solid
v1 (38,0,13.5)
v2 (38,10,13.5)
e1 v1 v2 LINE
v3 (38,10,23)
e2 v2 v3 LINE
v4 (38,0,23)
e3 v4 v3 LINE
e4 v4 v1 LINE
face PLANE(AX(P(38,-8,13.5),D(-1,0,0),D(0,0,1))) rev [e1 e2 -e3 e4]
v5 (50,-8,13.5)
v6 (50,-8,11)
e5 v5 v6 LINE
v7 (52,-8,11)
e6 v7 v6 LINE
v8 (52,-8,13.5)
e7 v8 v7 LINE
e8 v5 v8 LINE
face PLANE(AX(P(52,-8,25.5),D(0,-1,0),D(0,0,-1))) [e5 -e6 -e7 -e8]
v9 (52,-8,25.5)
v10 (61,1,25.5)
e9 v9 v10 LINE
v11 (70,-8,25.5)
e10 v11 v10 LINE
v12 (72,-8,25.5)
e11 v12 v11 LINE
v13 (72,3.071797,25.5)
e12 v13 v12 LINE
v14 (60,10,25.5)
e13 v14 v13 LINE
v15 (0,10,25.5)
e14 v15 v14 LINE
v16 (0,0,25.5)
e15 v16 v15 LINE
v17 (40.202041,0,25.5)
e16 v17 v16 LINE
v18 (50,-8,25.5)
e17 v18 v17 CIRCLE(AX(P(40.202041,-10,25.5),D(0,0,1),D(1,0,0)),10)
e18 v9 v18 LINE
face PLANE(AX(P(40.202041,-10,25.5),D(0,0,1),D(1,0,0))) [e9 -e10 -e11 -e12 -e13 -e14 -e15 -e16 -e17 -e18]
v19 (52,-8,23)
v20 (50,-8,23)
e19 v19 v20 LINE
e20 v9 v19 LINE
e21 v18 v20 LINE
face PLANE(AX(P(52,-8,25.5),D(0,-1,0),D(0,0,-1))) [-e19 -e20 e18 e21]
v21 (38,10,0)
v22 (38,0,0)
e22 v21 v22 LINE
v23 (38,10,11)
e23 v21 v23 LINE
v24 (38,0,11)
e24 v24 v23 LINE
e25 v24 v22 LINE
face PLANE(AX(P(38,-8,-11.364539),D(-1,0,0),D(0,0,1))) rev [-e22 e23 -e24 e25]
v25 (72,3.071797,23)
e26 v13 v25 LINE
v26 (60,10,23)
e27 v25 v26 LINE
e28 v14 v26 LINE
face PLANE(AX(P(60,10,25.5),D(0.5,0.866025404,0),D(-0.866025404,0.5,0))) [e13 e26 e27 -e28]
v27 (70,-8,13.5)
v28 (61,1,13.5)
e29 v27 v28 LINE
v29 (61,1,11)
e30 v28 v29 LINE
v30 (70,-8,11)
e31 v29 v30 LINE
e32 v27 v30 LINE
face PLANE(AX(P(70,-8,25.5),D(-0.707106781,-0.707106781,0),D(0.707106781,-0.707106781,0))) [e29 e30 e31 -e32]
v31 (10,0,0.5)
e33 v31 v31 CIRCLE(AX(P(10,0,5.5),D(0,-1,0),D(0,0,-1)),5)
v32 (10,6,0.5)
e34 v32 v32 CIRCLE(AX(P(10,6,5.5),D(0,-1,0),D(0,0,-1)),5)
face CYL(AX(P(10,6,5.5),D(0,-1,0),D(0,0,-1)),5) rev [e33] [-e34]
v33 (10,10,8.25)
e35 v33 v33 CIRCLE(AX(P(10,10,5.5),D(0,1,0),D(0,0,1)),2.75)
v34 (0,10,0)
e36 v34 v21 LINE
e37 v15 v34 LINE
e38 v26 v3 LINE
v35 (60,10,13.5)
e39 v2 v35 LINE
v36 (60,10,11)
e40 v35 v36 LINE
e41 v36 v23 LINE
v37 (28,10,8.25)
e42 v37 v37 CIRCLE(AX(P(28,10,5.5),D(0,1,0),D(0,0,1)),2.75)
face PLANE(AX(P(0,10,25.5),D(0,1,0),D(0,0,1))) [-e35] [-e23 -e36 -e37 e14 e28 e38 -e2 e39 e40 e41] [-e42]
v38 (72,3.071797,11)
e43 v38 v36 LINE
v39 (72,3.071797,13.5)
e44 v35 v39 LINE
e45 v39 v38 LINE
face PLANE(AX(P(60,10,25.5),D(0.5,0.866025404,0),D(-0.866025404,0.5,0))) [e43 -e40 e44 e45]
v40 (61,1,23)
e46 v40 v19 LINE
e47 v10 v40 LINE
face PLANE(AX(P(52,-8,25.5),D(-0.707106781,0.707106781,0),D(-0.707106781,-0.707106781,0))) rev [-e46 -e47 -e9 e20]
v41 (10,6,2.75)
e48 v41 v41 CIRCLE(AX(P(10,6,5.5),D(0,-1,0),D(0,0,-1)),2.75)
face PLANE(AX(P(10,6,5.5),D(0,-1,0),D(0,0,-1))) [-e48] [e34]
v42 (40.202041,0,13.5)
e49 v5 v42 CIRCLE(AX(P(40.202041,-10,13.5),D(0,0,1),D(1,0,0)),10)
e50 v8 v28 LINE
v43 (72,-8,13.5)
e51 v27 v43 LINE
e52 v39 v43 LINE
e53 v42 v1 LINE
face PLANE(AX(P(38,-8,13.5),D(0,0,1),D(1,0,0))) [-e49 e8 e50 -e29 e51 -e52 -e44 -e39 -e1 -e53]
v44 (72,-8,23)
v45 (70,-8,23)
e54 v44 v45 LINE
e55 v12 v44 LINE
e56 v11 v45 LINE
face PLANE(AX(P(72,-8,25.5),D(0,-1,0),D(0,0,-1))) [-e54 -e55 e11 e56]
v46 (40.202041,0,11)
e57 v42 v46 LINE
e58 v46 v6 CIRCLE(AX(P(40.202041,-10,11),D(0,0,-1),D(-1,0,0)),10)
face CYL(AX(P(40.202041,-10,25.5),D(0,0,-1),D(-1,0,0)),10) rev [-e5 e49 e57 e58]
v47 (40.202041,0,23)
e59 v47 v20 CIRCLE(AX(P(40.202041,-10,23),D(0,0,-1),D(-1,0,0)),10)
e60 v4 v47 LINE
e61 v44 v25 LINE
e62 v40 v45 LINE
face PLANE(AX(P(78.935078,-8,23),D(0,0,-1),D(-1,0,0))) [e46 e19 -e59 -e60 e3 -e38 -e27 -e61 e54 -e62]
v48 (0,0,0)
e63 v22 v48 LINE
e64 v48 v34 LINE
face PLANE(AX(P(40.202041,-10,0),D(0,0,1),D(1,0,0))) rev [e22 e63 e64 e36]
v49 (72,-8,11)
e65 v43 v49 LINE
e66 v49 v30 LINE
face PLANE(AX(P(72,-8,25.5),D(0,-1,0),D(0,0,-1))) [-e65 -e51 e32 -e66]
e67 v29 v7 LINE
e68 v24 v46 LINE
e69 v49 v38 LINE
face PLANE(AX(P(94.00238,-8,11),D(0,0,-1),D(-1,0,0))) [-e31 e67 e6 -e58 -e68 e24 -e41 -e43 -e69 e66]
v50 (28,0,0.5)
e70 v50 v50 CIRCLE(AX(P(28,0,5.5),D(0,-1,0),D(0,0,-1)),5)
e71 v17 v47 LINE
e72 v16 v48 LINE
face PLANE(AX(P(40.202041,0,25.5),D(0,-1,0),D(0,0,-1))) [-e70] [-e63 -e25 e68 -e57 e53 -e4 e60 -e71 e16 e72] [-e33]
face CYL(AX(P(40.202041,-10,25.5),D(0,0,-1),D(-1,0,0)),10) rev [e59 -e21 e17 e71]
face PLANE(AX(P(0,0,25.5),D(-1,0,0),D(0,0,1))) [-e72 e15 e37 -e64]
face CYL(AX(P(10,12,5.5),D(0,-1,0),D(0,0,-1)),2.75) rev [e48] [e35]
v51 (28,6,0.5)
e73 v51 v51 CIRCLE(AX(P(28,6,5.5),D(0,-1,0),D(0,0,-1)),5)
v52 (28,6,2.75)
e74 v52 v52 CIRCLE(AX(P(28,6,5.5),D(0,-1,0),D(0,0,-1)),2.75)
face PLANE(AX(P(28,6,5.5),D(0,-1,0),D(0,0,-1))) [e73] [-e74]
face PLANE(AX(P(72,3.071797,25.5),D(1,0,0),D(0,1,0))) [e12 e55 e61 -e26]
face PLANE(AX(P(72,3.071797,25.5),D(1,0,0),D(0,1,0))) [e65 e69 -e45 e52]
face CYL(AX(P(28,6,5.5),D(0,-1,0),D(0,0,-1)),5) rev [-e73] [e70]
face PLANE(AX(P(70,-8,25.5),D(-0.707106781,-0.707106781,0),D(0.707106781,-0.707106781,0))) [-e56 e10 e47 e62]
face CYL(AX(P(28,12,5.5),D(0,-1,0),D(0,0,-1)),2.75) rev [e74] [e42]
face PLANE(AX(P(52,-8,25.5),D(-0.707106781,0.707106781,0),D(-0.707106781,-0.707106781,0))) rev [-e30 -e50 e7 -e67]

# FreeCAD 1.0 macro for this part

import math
import FreeCAD as App
import Part
import Sketcher
Q = App.Units.Quantity


def add_polygon(sketch, points):
    """Adds a closed chain of lines whose ends are joined by coincident constraints."""
    first, n = sketch.GeometryCount, len(points)
    for a, b in zip(points, points[1:] + points[:1]):
        sketch.addGeometry(Part.LineSegment(App.Vector(*a, 0), App.Vector(*b, 0)), False)
    for i in range(n):
        sketch.addConstraint(Sketcher.Constraint("Coincident", first + i, 2, first + (i + 1) % n, 1))

doc = App.newDocument("Part")
body = doc.addObject("PartDesign::Body", "Body")

# Sketch on XY plane
sketch1 = body.newObject("Sketcher::SketchObject", "Sketch")
sketch1.AttachmentSupport = (doc.getObject("XY_Plane"), [""])
sketch1.MapMode = "FlatFace"
sketch1.addGeometry(Part.LineSegment(App.Vector(0, 10, 0), App.Vector(0, 0, 0)), False)
sketch1.addGeometry(Part.LineSegment(App.Vector(0, 0, 0), App.Vector(40.2, 0, 0)), False)
sketch1.addGeometry(Part.ArcOfCircle(Part.Circle(App.Vector(40.2, -10, 0), App.Vector(0, 0, 1), 10), math.radians(12), math.radians(90)), False)
sketch1.addGeometry(Part.LineSegment(App.Vector(50, -8, 0), App.Vector(52, -8, 0)), False)
sketch1.addGeometry(Part.LineSegment(App.Vector(52, -8, 0), App.Vector(61, 1, 0)), False)
sketch1.addGeometry(Part.LineSegment(App.Vector(61, 1, 0), App.Vector(70, -8, 0)), False)
sketch1.addGeometry(Part.LineSegment(App.Vector(70, -8, 0), App.Vector(72, -8, 0)), False)
sketch1.addGeometry(Part.LineSegment(App.Vector(72, -8, 0), App.Vector(72, 3.1, 0)), False)
sketch1.addGeometry(Part.LineSegment(App.Vector(72, 3.1, 0), App.Vector(60, 10, 0)), False)
sketch1.addGeometry(Part.LineSegment(App.Vector(60, 10, 0), App.Vector(0, 10, 0)), False)
sketch1.addConstraint(Sketcher.Constraint("Coincident", 0, 2, 1, 1))
sketch1.addConstraint(Sketcher.Constraint("Tangent", 1, 2, 2, 2))
sketch1.addConstraint(Sketcher.Constraint("Coincident", 2, 1, 3, 1))
sketch1.addConstraint(Sketcher.Constraint("Coincident", 3, 2, 4, 1))
sketch1.addConstraint(Sketcher.Constraint("Coincident", 4, 2, 5, 1))
sketch1.addConstraint(Sketcher.Constraint("Coincident", 5, 2, 6, 1))
sketch1.addConstraint(Sketcher.Constraint("Coincident", 6, 2, 7, 1))
sketch1.addConstraint(Sketcher.Constraint("Coincident", 7, 2, 8, 1))
sketch1.addConstraint(Sketcher.Constraint("Coincident", 8, 2, 9, 1))
sketch1.addConstraint(Sketcher.Constraint("Coincident", 9, 2, 0, 1))
sketch1.addConstraint(Sketcher.Constraint("Vertical", 0))
sketch1.addConstraint(Sketcher.Constraint("Horizontal", 1))
sketch1.addConstraint(Sketcher.Constraint("Horizontal", 3))
sketch1.addConstraint(Sketcher.Constraint("Horizontal", 6))
sketch1.addConstraint(Sketcher.Constraint("Vertical", 7))
sketch1.addConstraint(Sketcher.Constraint("Horizontal", 9))
sketch1.addConstraint(Sketcher.Constraint("Coincident", 0, 2, -1, 1))
sketch1.addConstraint(Sketcher.Constraint("Perpendicular", 4, 5))
sketch1.addConstraint(Sketcher.Constraint("Horizontal", 3, 2, 5, 2))
sketch1.addConstraint(Sketcher.Constraint("Equal", 3, 6))
sketch1.addConstraint(Sketcher.Constraint("Equal", 4, 5))
sketch1.addConstraint(Sketcher.Constraint("Radius", 2, 10.0))
sketch1.addConstraint(Sketcher.Constraint("DistanceX", 3, 1, 3, 2, 2.0))
sketch1.addConstraint(Sketcher.Constraint("DistanceX", 9, 2, 9, 1, 60.0))
sketch1.addConstraint(Sketcher.Constraint("DistanceY", 0, 2, 0, 1, 10.0))
sketch1.addConstraint(Sketcher.Constraint("Angle", 8, Q("150 deg")))
sketch1.addConstraint(Sketcher.Constraint("DistanceX", -1, 1, 2, 1, 50.0))
sketch1.addConstraint(Sketcher.Constraint("DistanceY", 2, 1, -1, 1, 8.0))
sketch1.addConstraint(Sketcher.Constraint("DistanceX", -1, 1, 4, 2, 61.0))
pad1 = body.newObject("PartDesign::Pad", "Pad")
pad1.Profile = sketch1
pad1.Length = 25.5

# Sketch on XZ plane
sketch2 = body.newObject("Sketcher::SketchObject", "Sketch001")
sketch2.AttachmentSupport = (doc.getObject("XZ_Plane"), [""])
sketch2.MapMode = "FlatFace"
sketch2.AttachmentOffset = App.Placement(App.Vector(0, 0, -10), App.Rotation())
add_polygon(sketch2, [(94, 11), (94, -11), (38, -11), (38, 11)])  # lines 0-3
sketch2.addConstraint(Sketcher.Constraint("Vertical", 0))
sketch2.addConstraint(Sketcher.Constraint("Horizontal", 1))
sketch2.addConstraint(Sketcher.Constraint("Vertical", 2))
sketch2.addConstraint(Sketcher.Constraint("Horizontal", 3))
sketch2.addConstraint(Sketcher.Constraint("DistanceX", -1, 1, 1, 2, 38.0))
sketch2.addConstraint(Sketcher.Constraint("DistanceY", -1, 1, 2, 2, 11.0))
sketch2.addConstraint(Sketcher.Constraint("DistanceX", 1, 2, 1, 1, 56.00238))
sketch2.addConstraint(Sketcher.Constraint("DistanceY", 0, 2, 0, 1, 22.364539))
pocket1 = body.newObject("PartDesign::Pocket", "Pocket")
pocket1.Profile = sketch2
pocket1.Type = "ThroughAll"
pocket1.Reversed = True

# Sketch on XZ plane
sketch3 = body.newObject("Sketcher::SketchObject", "Sketch002")
sketch3.AttachmentSupport = (doc.getObject("XZ_Plane"), [""])
sketch3.MapMode = "FlatFace"
sketch3.AttachmentOffset = App.Placement(App.Vector(0, 0, -10), App.Rotation())
add_polygon(sketch3, [(79, 23), (79, 14), (38, 14), (38, 23)])  # lines 0-3
sketch3.addConstraint(Sketcher.Constraint("Vertical", 0))
sketch3.addConstraint(Sketcher.Constraint("Horizontal", 1))
sketch3.addConstraint(Sketcher.Constraint("Vertical", 2))
sketch3.addConstraint(Sketcher.Constraint("Horizontal", 3))
sketch3.addConstraint(Sketcher.Constraint("DistanceY", 0, 2, 0, 1, 9.5))
sketch3.addConstraint(Sketcher.Constraint("DistanceX", -1, 1, 1, 2, 38.0))
sketch3.addConstraint(Sketcher.Constraint("DistanceY", -1, 1, 2, 2, 23.0))
sketch3.addConstraint(Sketcher.Constraint("DistanceX", 1, 2, 1, 1, 40.935078))
pocket2 = body.newObject("PartDesign::Pocket", "Pocket001")
pocket2.Profile = sketch3
pocket2.Type = "ThroughAll"
pocket2.Reversed = True

# Sketch on XZ plane
sketch4 = body.newObject("Sketcher::SketchObject", "Sketch003")
sketch4.AttachmentSupport = (doc.getObject("XZ_Plane"), [""])
sketch4.MapMode = "FlatFace"
sketch4.addGeometry(Part.Circle(App.Vector(10, 6, 0), App.Vector(0, 0, 1), 5), False)
sketch4.addGeometry(Part.Circle(App.Vector(28, 6, 0), App.Vector(0, 0, 1), 5), False)
sketch4.addConstraint(Sketcher.Constraint("Equal", 0, 1))
sketch4.addConstraint(Sketcher.Constraint("Horizontal", 0, 3, 1, 3))
sketch4.addConstraint(Sketcher.Constraint("Diameter", 0, 10.0))
sketch4.addConstraint(Sketcher.Constraint("DistanceX", -1, 1, 0, 3, 10.0))
sketch4.addConstraint(Sketcher.Constraint("DistanceX", -1, 1, 1, 3, 28.0))
sketch4.addConstraint(Sketcher.Constraint("DistanceY", -1, 1, 0, 3, 5.5))
pocket3 = body.newObject("PartDesign::Pocket", "Pocket002")
pocket3.Profile = sketch4
pocket3.Length = 6

# Sketch on XZ plane
sketch5 = body.newObject("Sketcher::SketchObject", "Sketch004")
sketch5.AttachmentSupport = (doc.getObject("XZ_Plane"), [""])
sketch5.MapMode = "FlatFace"
sketch5.AttachmentOffset = App.Placement(App.Vector(0, 0, -6), App.Rotation())
sketch5.addGeometry(Part.Circle(App.Vector(28, 5.5, 0), App.Vector(0, 0, 1), 2.8), False)
sketch5.addGeometry(Part.Circle(App.Vector(10, 5.5, 0), App.Vector(0, 0, 1), 2.8), False)
sketch5.addConstraint(Sketcher.Constraint("Equal", 0, 1))
sketch5.addConstraint(Sketcher.Constraint("Horizontal", 0, 3, 1, 3))
sketch5.addConstraint(Sketcher.Constraint("Diameter", 0, 5.5))
sketch5.addConstraint(Sketcher.Constraint("DistanceX", -1, 1, 0, 3, 28.0))
sketch5.addConstraint(Sketcher.Constraint("DistanceX", -1, 1, 1, 3, 10.0))
sketch5.addConstraint(Sketcher.Constraint("DistanceY", -1, 1, 0, 3, 5.5))
pocket4 = body.newObject("PartDesign::Pocket", "Pocket003")
pocket4.Profile = sketch5
pocket4.Length = 6

doc.recompute()
